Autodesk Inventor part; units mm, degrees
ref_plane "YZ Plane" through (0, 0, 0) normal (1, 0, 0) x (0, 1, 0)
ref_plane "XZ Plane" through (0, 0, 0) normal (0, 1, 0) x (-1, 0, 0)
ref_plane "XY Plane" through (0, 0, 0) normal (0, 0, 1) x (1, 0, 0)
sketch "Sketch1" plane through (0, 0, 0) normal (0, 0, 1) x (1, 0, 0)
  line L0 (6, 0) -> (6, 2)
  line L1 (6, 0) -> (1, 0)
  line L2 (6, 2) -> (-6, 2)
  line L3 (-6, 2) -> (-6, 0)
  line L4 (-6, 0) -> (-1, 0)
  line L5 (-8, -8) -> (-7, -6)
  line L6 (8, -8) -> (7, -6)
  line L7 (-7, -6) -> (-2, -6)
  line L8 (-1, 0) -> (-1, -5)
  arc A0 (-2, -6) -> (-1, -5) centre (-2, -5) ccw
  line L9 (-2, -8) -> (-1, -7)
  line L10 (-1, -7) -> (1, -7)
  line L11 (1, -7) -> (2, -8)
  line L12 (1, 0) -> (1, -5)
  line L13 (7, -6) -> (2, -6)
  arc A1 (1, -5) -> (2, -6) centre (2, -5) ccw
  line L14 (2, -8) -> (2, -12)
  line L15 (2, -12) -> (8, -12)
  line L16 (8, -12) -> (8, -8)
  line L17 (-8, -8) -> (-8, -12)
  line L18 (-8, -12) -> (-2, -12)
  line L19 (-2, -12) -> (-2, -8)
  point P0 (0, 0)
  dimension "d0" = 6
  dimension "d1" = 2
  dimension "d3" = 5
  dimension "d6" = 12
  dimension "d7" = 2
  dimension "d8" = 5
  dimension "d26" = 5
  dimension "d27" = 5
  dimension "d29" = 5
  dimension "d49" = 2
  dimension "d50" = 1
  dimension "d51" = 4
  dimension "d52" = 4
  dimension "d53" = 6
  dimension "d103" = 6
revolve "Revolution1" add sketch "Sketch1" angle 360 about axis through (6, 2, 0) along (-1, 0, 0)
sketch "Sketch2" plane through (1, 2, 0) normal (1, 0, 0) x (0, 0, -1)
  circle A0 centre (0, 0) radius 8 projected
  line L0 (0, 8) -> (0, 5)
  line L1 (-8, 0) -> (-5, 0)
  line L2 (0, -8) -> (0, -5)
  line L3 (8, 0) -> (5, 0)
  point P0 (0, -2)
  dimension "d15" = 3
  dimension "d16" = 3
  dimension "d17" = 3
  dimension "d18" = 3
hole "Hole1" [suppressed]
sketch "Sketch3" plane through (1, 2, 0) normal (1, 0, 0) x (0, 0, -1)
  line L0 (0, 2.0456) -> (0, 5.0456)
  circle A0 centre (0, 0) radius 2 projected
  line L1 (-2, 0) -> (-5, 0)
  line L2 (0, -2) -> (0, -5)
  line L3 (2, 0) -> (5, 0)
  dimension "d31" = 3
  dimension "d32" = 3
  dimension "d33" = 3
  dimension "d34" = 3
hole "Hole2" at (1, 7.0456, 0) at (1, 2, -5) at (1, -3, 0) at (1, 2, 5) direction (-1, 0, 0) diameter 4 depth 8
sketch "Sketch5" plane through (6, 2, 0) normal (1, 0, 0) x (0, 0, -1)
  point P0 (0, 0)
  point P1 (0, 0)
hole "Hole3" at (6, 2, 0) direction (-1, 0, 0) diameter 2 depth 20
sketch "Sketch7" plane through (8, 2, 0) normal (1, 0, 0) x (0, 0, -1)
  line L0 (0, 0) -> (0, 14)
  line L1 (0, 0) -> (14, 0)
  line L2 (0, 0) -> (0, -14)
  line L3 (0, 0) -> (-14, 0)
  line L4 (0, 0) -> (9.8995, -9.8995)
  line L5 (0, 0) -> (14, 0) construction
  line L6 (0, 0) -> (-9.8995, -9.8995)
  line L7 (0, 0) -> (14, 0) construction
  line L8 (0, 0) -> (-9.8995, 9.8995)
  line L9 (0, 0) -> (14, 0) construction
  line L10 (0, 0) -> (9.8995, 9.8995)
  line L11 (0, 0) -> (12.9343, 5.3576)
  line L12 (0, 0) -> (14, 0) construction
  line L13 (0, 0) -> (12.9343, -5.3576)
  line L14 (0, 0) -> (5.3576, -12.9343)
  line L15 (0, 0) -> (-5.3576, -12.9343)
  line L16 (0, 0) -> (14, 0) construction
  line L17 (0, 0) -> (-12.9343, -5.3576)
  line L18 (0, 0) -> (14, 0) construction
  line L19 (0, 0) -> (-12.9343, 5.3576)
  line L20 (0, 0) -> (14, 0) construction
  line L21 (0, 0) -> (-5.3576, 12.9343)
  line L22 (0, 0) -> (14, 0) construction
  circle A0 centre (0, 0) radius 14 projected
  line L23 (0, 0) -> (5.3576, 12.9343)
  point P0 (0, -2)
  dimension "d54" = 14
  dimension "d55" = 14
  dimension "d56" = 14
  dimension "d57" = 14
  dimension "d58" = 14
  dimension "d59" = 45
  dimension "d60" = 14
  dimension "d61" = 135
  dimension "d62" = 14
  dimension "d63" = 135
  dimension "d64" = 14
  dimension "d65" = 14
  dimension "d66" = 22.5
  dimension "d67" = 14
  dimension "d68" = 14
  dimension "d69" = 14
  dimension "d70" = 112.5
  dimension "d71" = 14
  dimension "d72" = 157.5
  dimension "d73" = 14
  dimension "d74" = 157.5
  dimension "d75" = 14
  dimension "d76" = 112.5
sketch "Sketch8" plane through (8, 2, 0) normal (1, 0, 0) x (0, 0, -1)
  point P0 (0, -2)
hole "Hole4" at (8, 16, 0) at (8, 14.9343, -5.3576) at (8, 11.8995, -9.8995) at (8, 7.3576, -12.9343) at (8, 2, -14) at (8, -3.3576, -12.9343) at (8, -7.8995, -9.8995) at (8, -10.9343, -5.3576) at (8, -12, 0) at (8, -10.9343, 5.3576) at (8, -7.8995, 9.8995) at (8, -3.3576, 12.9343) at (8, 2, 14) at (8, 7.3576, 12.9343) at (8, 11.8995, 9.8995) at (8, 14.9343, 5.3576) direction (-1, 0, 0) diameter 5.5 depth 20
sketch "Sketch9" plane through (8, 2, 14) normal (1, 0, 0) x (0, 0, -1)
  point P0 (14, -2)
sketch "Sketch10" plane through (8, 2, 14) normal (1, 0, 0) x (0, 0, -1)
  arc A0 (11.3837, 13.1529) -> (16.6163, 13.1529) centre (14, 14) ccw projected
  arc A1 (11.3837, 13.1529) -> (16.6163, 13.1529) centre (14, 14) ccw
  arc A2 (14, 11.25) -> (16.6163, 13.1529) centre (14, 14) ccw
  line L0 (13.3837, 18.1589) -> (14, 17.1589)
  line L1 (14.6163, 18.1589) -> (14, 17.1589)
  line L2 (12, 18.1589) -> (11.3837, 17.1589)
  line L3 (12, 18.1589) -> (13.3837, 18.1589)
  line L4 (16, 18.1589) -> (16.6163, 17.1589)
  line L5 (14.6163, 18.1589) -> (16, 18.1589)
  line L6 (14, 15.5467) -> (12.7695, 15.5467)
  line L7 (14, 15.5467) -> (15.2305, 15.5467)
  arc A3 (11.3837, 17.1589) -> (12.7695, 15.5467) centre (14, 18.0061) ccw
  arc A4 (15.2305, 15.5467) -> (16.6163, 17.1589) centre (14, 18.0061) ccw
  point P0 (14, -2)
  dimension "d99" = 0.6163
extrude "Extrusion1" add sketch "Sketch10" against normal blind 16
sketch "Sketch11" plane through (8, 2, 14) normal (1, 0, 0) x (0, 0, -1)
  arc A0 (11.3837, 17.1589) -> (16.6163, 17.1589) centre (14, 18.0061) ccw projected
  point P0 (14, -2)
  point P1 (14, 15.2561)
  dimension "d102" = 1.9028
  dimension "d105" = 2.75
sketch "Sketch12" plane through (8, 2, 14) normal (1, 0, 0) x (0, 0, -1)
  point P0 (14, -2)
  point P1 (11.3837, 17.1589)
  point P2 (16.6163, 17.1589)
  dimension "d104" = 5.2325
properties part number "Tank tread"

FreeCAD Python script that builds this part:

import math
import FreeCAD as App
import Part
import Sketcher
Q = App.Units.Quantity

doc = App.newDocument("Part")
body = doc.addObject("PartDesign::Body", "Body")
body.AllowCompound = True

# Sketch on XY plane
sketch1 = body.newObject("Sketcher::SketchObject", "Sketch")
sketch1.AttachmentSupport = (doc.getObject("XY_Plane"), [""])
sketch1.MapMode = "FlatFace"
sketch1.addGeometry([
    Part.LineSegment(App.Vector(1, 0, 0), App.Vector(6, 0, 0)),  # 0
    Part.LineSegment(App.Vector(6, 0, 0), App.Vector(6, 2, 0)),  # 1
    Part.LineSegment(App.Vector(6, 2, 0), App.Vector(-6, 2, 0)),  # 2
    Part.LineSegment(App.Vector(-6, 2, 0), App.Vector(-6, 0, 0)),  # 3
    Part.LineSegment(App.Vector(-6, 0, 0), App.Vector(-1, 0, 0)),  # 4
    Part.LineSegment(App.Vector(-1, 0, 0), App.Vector(-1, -5, 0)),  # 5
    Part.ArcOfCircle(Part.Circle(App.Vector(-2, -5, 0), App.Vector(0, 0, 1), 1), math.radians(-90), math.radians(0)),  # 6
    Part.LineSegment(App.Vector(-2, -6, 0), App.Vector(-7, -6, 0)),  # 7
    Part.LineSegment(App.Vector(-7, -6, 0), App.Vector(-8, -8, 0)),  # 8
    Part.LineSegment(App.Vector(-8, -8, 0), App.Vector(-8, -12, 0)),  # 9
    Part.LineSegment(App.Vector(-8, -12, 0), App.Vector(-2, -12, 0)),  # 10
    Part.LineSegment(App.Vector(-2, -12, 0), App.Vector(-2, -8, 0)),  # 11
    Part.LineSegment(App.Vector(-2, -8, 0), App.Vector(-1, -7, 0)),  # 12
    Part.LineSegment(App.Vector(-1, -7, 0), App.Vector(1, -7, 0)),  # 13
    Part.LineSegment(App.Vector(1, -7, 0), App.Vector(2, -8, 0)),  # 14
    Part.LineSegment(App.Vector(2, -8, 0), App.Vector(2, -12, 0)),  # 15
    Part.LineSegment(App.Vector(2, -12, 0), App.Vector(8, -12, 0)),  # 16
    Part.LineSegment(App.Vector(8, -12, 0), App.Vector(8, -8, 0)),  # 17
    Part.LineSegment(App.Vector(8, -8, 0), App.Vector(7, -6, 0)),  # 18
    Part.LineSegment(App.Vector(7, -6, 0), App.Vector(2, -6, 0)),  # 19
    Part.ArcOfCircle(Part.Circle(App.Vector(2, -5, 0), App.Vector(0, 0, 1), 1), math.radians(180), math.radians(270)),  # 20
    Part.LineSegment(App.Vector(1, -5, 0), App.Vector(1, 0, 0)),  # 21
], False)
sketch1.addGeometry(Part.LineSegment(App.Vector(8, 2, 0), App.Vector(-8, 2, 0)), True)  # axis
sketch1.addConstraint([
    Sketcher.Constraint("Coincident", 0, 2, 1, 1),
    Sketcher.Constraint("Coincident", 1, 2, 2, 1),
    Sketcher.Constraint("Coincident", 2, 2, 3, 1),
    Sketcher.Constraint("Coincident", 3, 2, 4, 1),
    Sketcher.Constraint("Coincident", 4, 2, 5, 1),
    Sketcher.Constraint("Tangent", 5, 2, 6, 2),
    Sketcher.Constraint("Tangent", 6, 1, 7, 1),
    Sketcher.Constraint("Coincident", 7, 2, 8, 1),
    Sketcher.Constraint("Coincident", 8, 2, 9, 1),
    Sketcher.Constraint("Coincident", 9, 2, 10, 1),
    Sketcher.Constraint("Coincident", 10, 2, 11, 1),
    Sketcher.Constraint("Coincident", 11, 2, 12, 1),
    Sketcher.Constraint("Coincident", 12, 2, 13, 1),
    Sketcher.Constraint("Coincident", 13, 2, 14, 1),
    Sketcher.Constraint("Coincident", 14, 2, 15, 1),
    Sketcher.Constraint("Coincident", 15, 2, 16, 1),
    Sketcher.Constraint("Coincident", 16, 2, 17, 1),
    Sketcher.Constraint("Coincident", 17, 2, 18, 1),
    Sketcher.Constraint("Coincident", 18, 2, 19, 1),
    Sketcher.Constraint("Tangent", 19, 2, 20, 2),
    Sketcher.Constraint("Tangent", 20, 1, 21, 1),
    Sketcher.Constraint("Coincident", 21, 2, 0, 1),
    Sketcher.Constraint("Horizontal", 0),
    Sketcher.Constraint("Vertical", 1),
    Sketcher.Constraint("Horizontal", 2),
    Sketcher.Constraint("Vertical", 3),
    Sketcher.Constraint("Horizontal", 4),
    Sketcher.Constraint("Vertical", 5),
    Sketcher.Constraint("Horizontal", 7),
    Sketcher.Constraint("Vertical", 9),
    Sketcher.Constraint("Horizontal", 10),
    Sketcher.Constraint("Vertical", 11),
    Sketcher.Constraint("Horizontal", 13),
    Sketcher.Constraint("Vertical", 15),
    Sketcher.Constraint("Horizontal", 16),
    Sketcher.Constraint("Vertical", 17),
    Sketcher.Constraint("Horizontal", 19),
    Sketcher.Constraint("Vertical", 21),
    Sketcher.Constraint("Horizontal", 22),
    Sketcher.Constraint("Equal", 6, 20),
    Sketcher.Constraint("Symmetric", 0, 2, 3, 2, -1, 1),
    Sketcher.Constraint("Symmetric", 6, 3, 20, 3, -2),
    Sketcher.Constraint("Symmetric", 11, 2, 14, 2, -2),
    Sketcher.Constraint("Symmetric", 9, 2, 16, 2, -2),
    Sketcher.Constraint("PointOnObject", 0, 2, -1),
    Sketcher.Constraint("Perpendicular", 12, 14),
    Sketcher.Constraint("Horizontal", 8, 2, 11, 2),
    Sketcher.Constraint("Horizontal", 14, 2, 17, 2),
    Sketcher.Constraint("Horizontal", 2, 2, 22, 1),
    Sketcher.Constraint("Vertical", 6, 1, 10, 2),
    Sketcher.Constraint("Vertical", 5, 2, 12, 2),
    Sketcher.Constraint("Vertical", 13, 2, 20, 1),
    Sketcher.Constraint("Vertical", 17, 2, 22, 1),
    Sketcher.Constraint("Vertical", 9, 2, 22, 2),
    Sketcher.Constraint("Equal", 4, 7),
    Sketcher.Constraint("Equal", 7, 19),
    Sketcher.Constraint("Equal", 13, 1),
    Sketcher.Constraint("Equal", 19, 5),
    Sketcher.Constraint("Radius", 6, Q("1 mm")),
    Sketcher.Constraint("DistanceX", 0, 1, 0, 2, Q("5 mm")),
    Sketcher.Constraint("DistanceX", 2, 2, 2, 1, Q("12 mm")),
    Sketcher.Constraint("DistanceX", 10, 1, 10, 2, Q("6 mm")),
    Sketcher.Constraint("DistanceY", 9, 2, 9, 1, Q("4 mm")),
    Sketcher.Constraint("DistanceY", 9, 2, -1, 1, Q("12 mm")),
])
revolution = body.newObject("PartDesign::Revolution", "Revolution")
revolution.Profile = sketch1
revolution.ReferenceAxis = (sketch1, ["Axis0"])
revolution.Angle = 360

# Sketch on YZ plane
sketch2 = body.newObject("Sketcher::SketchObject", "Sketch001")
sketch2.AttachmentSupport = (doc.getObject("YZ_Plane"), [""])
sketch2.MapMode = "FlatFace"
sketch2.AttachmentOffset = App.Placement(App.Vector(0, 0, 1), App.Rotation())
sketch2.addGeometry([
    Part.Circle(App.Vector(7, 0, 0), App.Vector(0, 0, 1), 2),
    Part.Circle(App.Vector(2, -5, 0), App.Vector(0, 0, 1), 2),
    Part.Circle(App.Vector(-3, 0, 0), App.Vector(0, 0, 1), 2),
    Part.Circle(App.Vector(2, 5, 0), App.Vector(0, 0, 1), 2),
], False)
sketch2.addConstraint([
    Sketcher.Constraint("Equal", 0, 1),
    Sketcher.Constraint("Equal", 1, 2),
    Sketcher.Constraint("Equal", 2, 3),
    Sketcher.Constraint("Symmetric", 1, 3, 3, 3, -1),
    Sketcher.Constraint("PointOnObject", 0, 3, -1),
    Sketcher.Constraint("PointOnObject", 2, 3, -1),
    Sketcher.Constraint("Diameter", 0, Q("4 mm")),
    Sketcher.Constraint("DistanceX", -1, 1, 1, 3, Q("2 mm")),
    Sketcher.Constraint("DistanceY", 1, 3, -1, 1, Q("5 mm")),
    Sketcher.Constraint("DistanceX", 2, 3, -1, 1, Q("3 mm")),
    Sketcher.Constraint("DistanceX", -1, 1, 0, 3, Q("7.0456 mm")),
])
doc.recompute()
hole = body.newObject("PartDesign::Hole", "Hole")
hole.Profile = sketch2
hole.ThreadType = "None"
hole.Diameter = 4
hole.DepthType = "Dimension"
hole.Depth = 8
hole.DrillPoint = "Flat"

# Sketch on YZ plane
sketch3 = body.newObject("Sketcher::SketchObject", "Sketch002")
sketch3.AttachmentSupport = (doc.getObject("YZ_Plane"), [""])
sketch3.MapMode = "FlatFace"
sketch3.AttachmentOffset = App.Placement(App.Vector(0, 0, 6), App.Rotation())
sketch3.addGeometry(Part.Circle(App.Vector(2, 0, 0), App.Vector(0, 0, 1), 1), False)
sketch3.addConstraint([
    Sketcher.Constraint("PointOnObject", 0, 3, -1),
    Sketcher.Constraint("Diameter", 0, Q("2 mm")),
    Sketcher.Constraint("DistanceX", -1, 1, 0, 3, Q("2 mm")),
])
doc.recompute()
hole2 = body.newObject("PartDesign::Hole", "Hole001")
hole2.Profile = sketch3
hole2.ThreadType = "None"
hole2.Diameter = 2
hole2.DepthType = "Dimension"
hole2.Depth = 20
hole2.DrillPoint = "Flat"

# Sketch on YZ plane
sketch4 = body.newObject("Sketcher::SketchObject", "Sketch003")
sketch4.AttachmentSupport = (doc.getObject("YZ_Plane"), [""])
sketch4.MapMode = "FlatFace"
sketch4.AttachmentOffset = App.Placement(App.Vector(0, 0, 8), App.Rotation())
sketch4.addGeometry([
    Part.Circle(App.Vector(16, 0, 0), App.Vector(0, 0, 1), 2.8),  # 0
    Part.Circle(App.Vector(14.9, -5.4, 0), App.Vector(0, 0, 1), 2.8),  # 1
    Part.Circle(App.Vector(11.9, -9.9, 0), App.Vector(0, 0, 1), 2.8),  # 2
    Part.Circle(App.Vector(7.4, -12.9, 0), App.Vector(0, 0, 1), 2.8),  # 3
    Part.Circle(App.Vector(2, -14, 0), App.Vector(0, 0, 1), 2.8),  # 4
    Part.Circle(App.Vector(-3.4, -12.9, 0), App.Vector(0, 0, 1), 2.8),  # 5
    Part.Circle(App.Vector(-7.9, -9.9, 0), App.Vector(0, 0, 1), 2.8),  # 6
    Part.Circle(App.Vector(-10.9, -5.4, 0), App.Vector(0, 0, 1), 2.8),  # 7
    Part.Circle(App.Vector(-12, 0, 0), App.Vector(0, 0, 1), 2.8),  # 8
    Part.Circle(App.Vector(-10.9, 5.4, 0), App.Vector(0, 0, 1), 2.8),  # 9
    Part.Circle(App.Vector(-7.9, 9.9, 0), App.Vector(0, 0, 1), 2.8),  # 10
    Part.Circle(App.Vector(-3.4, 12.9, 0), App.Vector(0, 0, 1), 2.8),  # 11
    Part.Circle(App.Vector(2, 14, 0), App.Vector(0, 0, 1), 2.8),  # 12
    Part.Circle(App.Vector(7.4, 12.9, 0), App.Vector(0, 0, 1), 2.8),  # 13
    Part.Circle(App.Vector(11.9, 9.9, 0), App.Vector(0, 0, 1), 2.8),  # 14
    Part.Circle(App.Vector(14.9, 5.4, 0), App.Vector(0, 0, 1), 2.8),  # 15
], False)
sketch4.addConstraint([
    Sketcher.Constraint("Equal", 0, 1),
    Sketcher.Constraint("Equal", 1, 2),
    Sketcher.Constraint("Equal", 2, 3),
    Sketcher.Constraint("Equal", 3, 4),
    Sketcher.Constraint("Equal", 4, 5),
    Sketcher.Constraint("Equal", 5, 6),
    Sketcher.Constraint("Equal", 6, 7),
    Sketcher.Constraint("Equal", 7, 8),
    Sketcher.Constraint("Equal", 8, 9),
    Sketcher.Constraint("Equal", 9, 10),
    Sketcher.Constraint("Equal", 10, 11),
    Sketcher.Constraint("Equal", 11, 12),
    Sketcher.Constraint("Equal", 12, 13),
    Sketcher.Constraint("Equal", 13, 14),
    Sketcher.Constraint("Equal", 14, 15),
    Sketcher.Constraint("Symmetric", 7, 3, 9, 3, -1),
    Sketcher.Constraint("Symmetric", 6, 3, 10, 3, -1),
    Sketcher.Constraint("Symmetric", 5, 3, 11, 3, -1),
    Sketcher.Constraint("Symmetric", 4, 3, 12, 3, -1),
    Sketcher.Constraint("Symmetric", 3, 3, 13, 3, -1),
    Sketcher.Constraint("Symmetric", 2, 3, 14, 3, -1),
    Sketcher.Constraint("Symmetric", 1, 3, 15, 3, -1),
    Sketcher.Constraint("PointOnObject", 0, 3, -1),
    Sketcher.Constraint("PointOnObject", 8, 3, -1),
    Sketcher.Constraint("Horizontal", 3, 3, 5, 3),
    Sketcher.Constraint("Horizontal", 2, 3, 6, 3),
    Sketcher.Constraint("Horizontal", 1, 3, 7, 3),
    Sketcher.Constraint("Diameter", 0, Q("5.5 mm")),
    Sketcher.Constraint("DistanceX", -1, 1, 0, 3, Q("16 mm")),
    Sketcher.Constraint("DistanceX", -1, 1, 4, 3, Q("2 mm")),
    Sketcher.Constraint("DistanceY", 4, 3, -1, 1, Q("14 mm")),
    Sketcher.Constraint("DistanceX", 8, 3, -1, 1, Q("12 mm")),
    Sketcher.Constraint("DistanceY", 2, 3, 1, 3, Q("4.542 mm")),
    Sketcher.Constraint("DistanceX", 3, 3, 2, 3, Q("4.542 mm")),
    Sketcher.Constraint("DistanceX", 5, 3, 2, 3, Q("15.257 mm")),
    Sketcher.Constraint("DistanceX", 5, 3, 1, 3, Q("18.292 mm")),
    Sketcher.Constraint("DistanceX", 6, 3, 5, 3, Q("4.542 mm")),
    Sketcher.Constraint("DistanceX", 7, 3, 3, 3, Q("18.292 mm")),
    Sketcher.Constraint("DistanceY", 6, 3, 9, 3, Q("15.257 mm")),
    Sketcher.Constraint("DistanceY", 5, 3, 9, 3, Q("18.292 mm")),
    Sketcher.Constraint("DistanceX", -1, 1, 1, 3, Q("14.9343 mm")),
])
doc.recompute()
hole3 = body.newObject("PartDesign::Hole", "Hole002")
hole3.Profile = sketch4
hole3.ThreadType = "None"
hole3.Diameter = 5.5
hole3.DepthType = "Dimension"
hole3.Depth = 20
hole3.DrillPoint = "Flat"

# Sketch on YZ plane
sketch5 = body.newObject("Sketcher::SketchObject", "Sketch004")
sketch5.AttachmentSupport = (doc.getObject("YZ_Plane"), [""])
sketch5.MapMode = "FlatFace"
sketch5.AttachmentOffset = App.Placement(App.Vector(0, 0, 8), App.Rotation())
sketch5.addGeometry([
    Part.LineSegment(App.Vector(19.2, 0, 0), App.Vector(20.2, 0.6, 0)),  # 0
    Part.LineSegment(App.Vector(20.2, 0.6, 0), App.Vector(20.2, 2, 0)),  # 1
    Part.LineSegment(App.Vector(20.2, 2, 0), App.Vector(19.2, 2.6, 0)),  # 2
    Part.ArcOfCircle(Part.Circle(App.Vector(20, 0, 0), App.Vector(0, 0, 1), 2.8), math.radians(108), math.radians(153)),  # 3
    Part.LineSegment(App.Vector(17.5, 1.2, 0), App.Vector(17.5, -1.2, 0)),  # 4
    Part.ArcOfCircle(Part.Circle(App.Vector(20, 0, 0), App.Vector(0, 0, 1), 2.8), math.radians(-153), math.radians(-108)),  # 5
    Part.LineSegment(App.Vector(19.2, -2.6, 0), App.Vector(20.2, -2, 0)),  # 6
    Part.LineSegment(App.Vector(20.2, -2, 0), App.Vector(20.2, -0.6, 0)),  # 7
    Part.LineSegment(App.Vector(20.2, -0.6, 0), App.Vector(19.2, 0, 0)),  # 8
], False)
sketch5.addConstraint([
    Sketcher.Constraint("Coincident", 0, 2, 1, 1),
    Sketcher.Constraint("Coincident", 1, 2, 2, 1),
    Sketcher.Constraint("Coincident", 2, 2, 3, 1),
    Sketcher.Constraint("Coincident", 3, 2, 4, 1),
    Sketcher.Constraint("Coincident", 4, 2, 5, 1),
    Sketcher.Constraint("Coincident", 5, 2, 6, 1),
    Sketcher.Constraint("Coincident", 6, 2, 7, 1),
    Sketcher.Constraint("Coincident", 7, 2, 8, 1),
    Sketcher.Constraint("Coincident", 8, 2, 0, 1),
    Sketcher.Constraint("Vertical", 1),
    Sketcher.Constraint("Vertical", 4),
    Sketcher.Constraint("Vertical", 7),
    Sketcher.Constraint("Coincident", 5, 3, 3, 3),
    Sketcher.Constraint("Equal", 3, 5),
    Sketcher.Constraint("Symmetric", 2, 2, 5, 2, -1),
    Sketcher.Constraint("Symmetric", 1, 2, 6, 2, -1),
    Sketcher.Constraint("PointOnObject", 8, 2, -1),
    Sketcher.Constraint("Parallel", 0, 6),
    Sketcher.Constraint("Parallel", 2, 8),
    Sketcher.Constraint("Vertical", 5, 2, 8, 2),
    Sketcher.Constraint("Radius", 3, Q("2.75 mm")),
    Sketcher.Constraint("DistanceY", -1, 1, 1, 2, Q("2 mm")),
    Sketcher.Constraint("DistanceX", 2, 2, 1, 2, Q("1 mm")),
    Sketcher.Constraint("DistanceY", -1, 1, 0, 2, Q("0.6163 mm")),
    Sketcher.Constraint("DistanceY", 4, 2, 4, 1, Q("2.461 mm")),
    Sketcher.Constraint("DistanceX", -1, 1, 3, 3, Q("20.006 mm")),
])
pad1 = body.newObject("PartDesign::Pad", "Pad")
pad1.Profile = sketch5
pad1.Length = 16
pad1.Reversed = True

doc.recompute()
